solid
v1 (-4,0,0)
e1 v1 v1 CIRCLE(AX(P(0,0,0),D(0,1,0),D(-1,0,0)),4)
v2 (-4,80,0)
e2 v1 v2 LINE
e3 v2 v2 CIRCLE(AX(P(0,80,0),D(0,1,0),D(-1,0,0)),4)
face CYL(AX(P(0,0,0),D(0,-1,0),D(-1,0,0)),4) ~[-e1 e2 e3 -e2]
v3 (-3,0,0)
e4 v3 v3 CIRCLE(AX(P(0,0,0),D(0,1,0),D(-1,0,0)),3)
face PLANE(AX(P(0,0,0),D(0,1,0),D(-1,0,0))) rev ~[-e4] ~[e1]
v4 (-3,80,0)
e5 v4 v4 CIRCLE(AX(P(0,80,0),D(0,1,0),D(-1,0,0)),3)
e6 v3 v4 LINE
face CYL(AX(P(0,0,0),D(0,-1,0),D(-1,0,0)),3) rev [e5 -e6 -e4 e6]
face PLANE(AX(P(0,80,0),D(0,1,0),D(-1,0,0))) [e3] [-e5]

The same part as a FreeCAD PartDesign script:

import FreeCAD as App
import Part
import Sketcher

V = App.Vector
Q = App.Units.Quantity

doc = App.newDocument("Part")
body = doc.addObject("PartDesign::Body", "Body")

sketch1 = doc.addObject("Sketcher::SketchObject", "Sketch")
body.addObject(sketch1)
sketch1.AttachmentSupport = (doc.XZ_Plane, [""])
sketch1.MapMode = "FlatFace"
sketch1.addGeometry([
    Part.Circle(V(0, 0, 0), V(0, 0, 1), 4),
    Part.Circle(V(0, 0, 0), V(0, 0, 1), 3),
], False)
sketch1.addConstraint([
    Sketcher.Constraint("Coincident", 0, 3, -1, 1),
    Sketcher.Constraint("Coincident", 1, 3, -1, 1),
    Sketcher.Constraint("Diameter", 0, Q("8 mm")),
    Sketcher.Constraint("Diameter", 1, Q("6 mm")),
])
pad1 = doc.addObject("PartDesign::Pad", "Pad")
body.addObject(pad1)
pad1.Profile = sketch1
pad1.Length = 80
pad1.Reversed = True

doc.recompute()
